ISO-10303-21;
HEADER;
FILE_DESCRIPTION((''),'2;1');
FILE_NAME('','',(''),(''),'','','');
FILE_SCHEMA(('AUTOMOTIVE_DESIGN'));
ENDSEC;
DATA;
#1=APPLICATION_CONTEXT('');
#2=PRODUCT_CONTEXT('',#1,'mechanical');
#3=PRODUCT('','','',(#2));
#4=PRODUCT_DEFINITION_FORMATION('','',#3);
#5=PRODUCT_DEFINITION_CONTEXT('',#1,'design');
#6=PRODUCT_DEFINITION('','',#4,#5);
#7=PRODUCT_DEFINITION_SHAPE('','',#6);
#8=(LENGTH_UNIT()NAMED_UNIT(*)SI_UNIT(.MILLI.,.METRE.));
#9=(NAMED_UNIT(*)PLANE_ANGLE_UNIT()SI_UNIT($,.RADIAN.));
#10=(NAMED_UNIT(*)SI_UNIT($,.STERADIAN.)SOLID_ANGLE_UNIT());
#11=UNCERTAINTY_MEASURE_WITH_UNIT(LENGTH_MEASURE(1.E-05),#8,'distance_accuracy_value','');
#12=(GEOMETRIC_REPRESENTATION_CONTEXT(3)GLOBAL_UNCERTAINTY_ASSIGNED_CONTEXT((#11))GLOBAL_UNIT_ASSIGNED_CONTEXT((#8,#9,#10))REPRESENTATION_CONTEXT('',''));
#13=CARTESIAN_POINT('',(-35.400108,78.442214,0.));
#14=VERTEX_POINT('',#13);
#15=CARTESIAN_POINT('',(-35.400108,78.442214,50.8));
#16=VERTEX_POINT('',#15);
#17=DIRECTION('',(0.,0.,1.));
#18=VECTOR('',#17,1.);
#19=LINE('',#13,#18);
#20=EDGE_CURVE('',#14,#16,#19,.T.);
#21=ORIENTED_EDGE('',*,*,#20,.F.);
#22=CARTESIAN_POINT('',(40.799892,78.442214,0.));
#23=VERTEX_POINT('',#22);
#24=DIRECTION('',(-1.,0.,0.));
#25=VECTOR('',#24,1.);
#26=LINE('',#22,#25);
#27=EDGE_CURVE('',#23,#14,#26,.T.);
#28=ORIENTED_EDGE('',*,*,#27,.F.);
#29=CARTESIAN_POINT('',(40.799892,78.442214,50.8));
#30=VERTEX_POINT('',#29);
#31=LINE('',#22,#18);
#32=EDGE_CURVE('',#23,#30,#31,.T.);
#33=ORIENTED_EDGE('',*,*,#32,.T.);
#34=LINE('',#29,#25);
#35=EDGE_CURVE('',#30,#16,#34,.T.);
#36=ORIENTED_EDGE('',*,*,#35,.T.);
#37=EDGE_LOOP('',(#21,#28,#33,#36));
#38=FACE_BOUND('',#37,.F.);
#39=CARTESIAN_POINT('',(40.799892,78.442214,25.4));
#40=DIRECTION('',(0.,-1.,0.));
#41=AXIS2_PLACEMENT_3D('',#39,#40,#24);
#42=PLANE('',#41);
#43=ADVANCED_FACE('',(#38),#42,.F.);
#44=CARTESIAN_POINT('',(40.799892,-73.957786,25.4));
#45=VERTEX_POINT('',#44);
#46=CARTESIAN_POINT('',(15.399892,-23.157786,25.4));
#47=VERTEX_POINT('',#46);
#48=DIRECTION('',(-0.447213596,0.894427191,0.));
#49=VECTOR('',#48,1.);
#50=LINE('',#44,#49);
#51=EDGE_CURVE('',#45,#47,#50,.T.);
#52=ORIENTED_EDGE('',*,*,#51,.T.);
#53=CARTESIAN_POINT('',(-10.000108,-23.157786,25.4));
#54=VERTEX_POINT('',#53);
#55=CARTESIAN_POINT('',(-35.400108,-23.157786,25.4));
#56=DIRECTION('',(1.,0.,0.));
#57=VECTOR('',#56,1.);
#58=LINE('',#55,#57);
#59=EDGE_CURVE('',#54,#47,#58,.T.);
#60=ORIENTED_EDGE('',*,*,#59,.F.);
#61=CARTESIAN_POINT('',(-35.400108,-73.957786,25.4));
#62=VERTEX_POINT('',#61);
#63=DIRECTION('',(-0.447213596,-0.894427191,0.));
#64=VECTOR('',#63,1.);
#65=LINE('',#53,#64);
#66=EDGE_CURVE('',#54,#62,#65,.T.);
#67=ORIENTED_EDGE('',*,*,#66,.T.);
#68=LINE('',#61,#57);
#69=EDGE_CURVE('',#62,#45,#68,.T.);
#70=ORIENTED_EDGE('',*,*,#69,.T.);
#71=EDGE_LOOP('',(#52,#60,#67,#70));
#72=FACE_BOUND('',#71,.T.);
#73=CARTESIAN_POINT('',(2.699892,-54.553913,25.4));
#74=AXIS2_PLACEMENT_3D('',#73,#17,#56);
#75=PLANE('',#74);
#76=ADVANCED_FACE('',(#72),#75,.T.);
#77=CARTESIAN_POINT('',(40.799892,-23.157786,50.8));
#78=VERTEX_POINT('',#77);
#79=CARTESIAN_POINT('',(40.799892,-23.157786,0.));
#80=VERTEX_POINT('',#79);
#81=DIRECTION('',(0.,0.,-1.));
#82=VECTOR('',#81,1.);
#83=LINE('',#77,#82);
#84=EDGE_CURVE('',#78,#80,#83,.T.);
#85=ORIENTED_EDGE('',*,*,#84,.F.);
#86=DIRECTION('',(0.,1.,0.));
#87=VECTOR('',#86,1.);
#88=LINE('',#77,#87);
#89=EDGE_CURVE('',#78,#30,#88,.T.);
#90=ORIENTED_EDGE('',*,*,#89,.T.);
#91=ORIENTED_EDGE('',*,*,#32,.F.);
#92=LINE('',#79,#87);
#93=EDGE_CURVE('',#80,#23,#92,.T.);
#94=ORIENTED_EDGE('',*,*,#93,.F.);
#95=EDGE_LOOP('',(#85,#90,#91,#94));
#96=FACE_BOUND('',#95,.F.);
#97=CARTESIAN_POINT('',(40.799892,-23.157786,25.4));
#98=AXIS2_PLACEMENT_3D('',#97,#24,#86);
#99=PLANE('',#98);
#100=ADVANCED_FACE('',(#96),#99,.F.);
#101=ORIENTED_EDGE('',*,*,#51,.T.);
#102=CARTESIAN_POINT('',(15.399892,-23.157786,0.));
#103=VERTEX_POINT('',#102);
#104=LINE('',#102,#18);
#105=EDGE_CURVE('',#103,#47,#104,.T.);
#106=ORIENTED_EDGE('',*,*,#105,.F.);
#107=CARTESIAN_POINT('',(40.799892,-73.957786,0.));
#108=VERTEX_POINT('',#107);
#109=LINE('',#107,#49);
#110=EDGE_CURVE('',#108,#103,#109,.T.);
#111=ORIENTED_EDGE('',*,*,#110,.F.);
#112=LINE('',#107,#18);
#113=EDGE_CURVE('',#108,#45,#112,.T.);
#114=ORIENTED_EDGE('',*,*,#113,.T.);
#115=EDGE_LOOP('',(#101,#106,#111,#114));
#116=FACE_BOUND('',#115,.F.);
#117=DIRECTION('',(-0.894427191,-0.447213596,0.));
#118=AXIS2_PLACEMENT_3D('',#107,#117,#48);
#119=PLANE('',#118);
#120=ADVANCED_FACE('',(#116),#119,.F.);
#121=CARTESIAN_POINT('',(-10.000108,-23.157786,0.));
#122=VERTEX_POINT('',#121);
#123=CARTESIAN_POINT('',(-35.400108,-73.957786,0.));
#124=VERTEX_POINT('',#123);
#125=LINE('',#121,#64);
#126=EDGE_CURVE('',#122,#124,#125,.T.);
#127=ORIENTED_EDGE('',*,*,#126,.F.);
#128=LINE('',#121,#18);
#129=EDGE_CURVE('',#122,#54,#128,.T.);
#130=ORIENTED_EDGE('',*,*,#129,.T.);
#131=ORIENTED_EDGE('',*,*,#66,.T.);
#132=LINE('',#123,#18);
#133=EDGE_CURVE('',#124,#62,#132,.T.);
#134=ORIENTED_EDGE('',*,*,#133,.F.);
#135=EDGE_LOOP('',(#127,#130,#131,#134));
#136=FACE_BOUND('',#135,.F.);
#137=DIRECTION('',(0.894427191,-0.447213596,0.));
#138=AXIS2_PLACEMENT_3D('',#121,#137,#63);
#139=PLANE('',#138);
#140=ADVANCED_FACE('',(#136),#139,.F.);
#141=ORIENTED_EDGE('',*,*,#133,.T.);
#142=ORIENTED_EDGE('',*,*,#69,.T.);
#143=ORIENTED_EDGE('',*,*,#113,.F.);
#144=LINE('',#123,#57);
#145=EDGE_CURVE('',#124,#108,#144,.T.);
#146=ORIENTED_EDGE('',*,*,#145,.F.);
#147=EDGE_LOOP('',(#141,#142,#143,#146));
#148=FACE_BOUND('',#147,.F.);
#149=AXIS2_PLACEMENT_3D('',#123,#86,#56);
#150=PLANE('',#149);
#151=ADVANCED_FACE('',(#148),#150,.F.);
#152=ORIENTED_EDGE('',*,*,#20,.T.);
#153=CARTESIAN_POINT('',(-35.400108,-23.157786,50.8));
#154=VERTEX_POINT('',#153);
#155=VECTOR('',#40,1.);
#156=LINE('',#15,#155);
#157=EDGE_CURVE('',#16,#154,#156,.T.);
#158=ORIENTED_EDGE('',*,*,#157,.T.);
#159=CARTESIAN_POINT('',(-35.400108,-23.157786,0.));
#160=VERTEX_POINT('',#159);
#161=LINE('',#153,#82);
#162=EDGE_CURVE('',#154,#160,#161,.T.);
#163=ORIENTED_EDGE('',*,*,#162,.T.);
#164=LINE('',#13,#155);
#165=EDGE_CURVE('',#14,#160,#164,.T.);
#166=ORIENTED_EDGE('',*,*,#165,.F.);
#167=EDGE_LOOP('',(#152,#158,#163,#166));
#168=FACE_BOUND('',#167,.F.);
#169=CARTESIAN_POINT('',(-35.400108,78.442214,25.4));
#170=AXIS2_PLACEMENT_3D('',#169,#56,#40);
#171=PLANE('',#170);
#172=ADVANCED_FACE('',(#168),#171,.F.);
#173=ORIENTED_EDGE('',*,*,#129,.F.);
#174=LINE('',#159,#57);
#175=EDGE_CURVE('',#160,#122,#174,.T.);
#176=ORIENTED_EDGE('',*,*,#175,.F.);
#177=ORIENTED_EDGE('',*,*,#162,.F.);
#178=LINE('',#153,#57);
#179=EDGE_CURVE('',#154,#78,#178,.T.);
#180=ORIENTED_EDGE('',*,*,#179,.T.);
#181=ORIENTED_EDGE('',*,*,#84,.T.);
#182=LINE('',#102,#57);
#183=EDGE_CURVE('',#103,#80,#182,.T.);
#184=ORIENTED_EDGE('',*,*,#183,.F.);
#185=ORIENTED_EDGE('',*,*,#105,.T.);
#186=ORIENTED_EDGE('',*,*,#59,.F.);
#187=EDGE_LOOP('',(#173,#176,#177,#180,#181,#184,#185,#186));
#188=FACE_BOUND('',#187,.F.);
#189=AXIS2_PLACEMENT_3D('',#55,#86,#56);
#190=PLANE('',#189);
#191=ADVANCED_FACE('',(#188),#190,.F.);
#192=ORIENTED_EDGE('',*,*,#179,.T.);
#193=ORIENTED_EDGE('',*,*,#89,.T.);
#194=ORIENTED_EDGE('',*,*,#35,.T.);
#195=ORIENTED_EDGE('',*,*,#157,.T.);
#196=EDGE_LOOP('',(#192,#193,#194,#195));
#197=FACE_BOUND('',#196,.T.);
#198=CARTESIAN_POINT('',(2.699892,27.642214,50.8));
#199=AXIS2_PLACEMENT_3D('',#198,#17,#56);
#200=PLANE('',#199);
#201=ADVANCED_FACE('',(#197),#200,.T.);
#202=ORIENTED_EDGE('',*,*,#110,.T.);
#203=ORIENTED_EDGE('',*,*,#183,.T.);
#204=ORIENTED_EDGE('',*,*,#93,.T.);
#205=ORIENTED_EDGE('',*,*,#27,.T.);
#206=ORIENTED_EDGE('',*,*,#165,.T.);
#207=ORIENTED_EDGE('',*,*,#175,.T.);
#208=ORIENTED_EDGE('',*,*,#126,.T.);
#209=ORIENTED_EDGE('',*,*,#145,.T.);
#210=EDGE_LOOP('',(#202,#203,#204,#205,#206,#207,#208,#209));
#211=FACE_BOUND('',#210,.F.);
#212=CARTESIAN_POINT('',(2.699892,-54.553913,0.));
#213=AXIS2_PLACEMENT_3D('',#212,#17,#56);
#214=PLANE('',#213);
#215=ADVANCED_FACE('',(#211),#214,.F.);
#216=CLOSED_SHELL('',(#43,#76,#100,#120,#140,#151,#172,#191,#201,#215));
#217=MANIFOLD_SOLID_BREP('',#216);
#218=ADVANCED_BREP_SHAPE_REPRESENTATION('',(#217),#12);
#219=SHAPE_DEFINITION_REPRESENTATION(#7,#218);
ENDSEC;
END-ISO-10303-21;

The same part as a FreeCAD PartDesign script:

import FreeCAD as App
import Part
import Sketcher
Q = App.Units.Quantity


def add_polygon(sketch, points):
    """Adds a closed chain of lines whose ends are joined by coincident constraints."""
    first, n = sketch.GeometryCount, len(points)
    for a, b in zip(points, points[1:] + points[:1]):
        sketch.addGeometry(Part.LineSegment(App.Vector(*a, 0), App.Vector(*b, 0)), False)
    for i in range(n):
        sketch.addConstraint(Sketcher.Constraint("Coincident", first + i, 2, first + (i + 1) % n, 1))

doc = App.newDocument("Part")
body = doc.addObject("PartDesign::Body", "Body")

sketch1 = body.newObject("Sketcher::SketchObject", "Sketch")
sketch1.AttachmentSupport = (doc.getObject("XY_Plane"), [""])
sketch1.MapMode = "FlatFace"
add_polygon(sketch1, [(-10.000108, -23.157786), (-35.400108, -73.957786), (40.799892, -73.957786), (15.399892, -23.157786), (40.799892, -23.157786), (40.799892, 78.442214), (-35.400108, 78.442214), (-35.400108, -23.157786)])
sketch1.addConstraint([
    Sketcher.Constraint("Horizontal", 1),
    Sketcher.Constraint("Horizontal", 3),
    Sketcher.Constraint("Vertical", 4),
    Sketcher.Constraint("Horizontal", 5),
    Sketcher.Constraint("Vertical", 6),
    Sketcher.Constraint("Horizontal", 7),
    Sketcher.Constraint("Horizontal", 3, 2, 6, 2),
    Sketcher.Constraint("Vertical", 1, 2, 3, 2),
    Sketcher.Constraint("Vertical", 0, 2, 5, 2),
    Sketcher.Constraint("Equal", 3, 7),
    Sketcher.Constraint("DistanceX", 1, 1, 1, 2, Q("3 in")),
    Sketcher.Constraint("DistanceX", 3, 1, 3, 2, Q("1 in")),
    Sketcher.Constraint("DistanceY", 4, 1, 4, 2, Q("4 in")),
    Sketcher.Constraint("DistanceY", 1, 2, 2, 2, Q("2 in")),
    Sketcher.Constraint("DistanceX", 0, 2, -1, 1, 35.400108),
    Sketcher.Constraint("DistanceY", 0, 2, -1, 1, 73.957786),
])
pad1 = body.newObject("PartDesign::Pad", "Pad")
pad1.Profile = sketch1
pad1.Length = Q("1 in")

sketch2 = body.newObject("Sketcher::SketchObject", "Sketch001")
sketch2.AttachmentSupport = (doc.getObject("XY_Plane"), [""])
sketch2.MapMode = "FlatFace"
sketch2.AttachmentOffset = App.Placement(App.Vector(0, 0, 1 * 25.4), App.Rotation())
add_polygon(sketch2, [(40.799892, -23.157786), (40.799892, 78.442214), (-35.400108, 78.442214), (-35.400108, -23.157786)])
sketch2.addConstraint([
    Sketcher.Constraint("Vertical", 0),
    Sketcher.Constraint("Horizontal", 1),
    Sketcher.Constraint("Vertical", 2),
    Sketcher.Constraint("Horizontal", 3),
    Sketcher.Constraint("DistanceX", 1, 2, 1, 1, Q("3 in")),
    Sketcher.Constraint("DistanceY", 0, 1, 0, 2, Q("4 in")),
    Sketcher.Constraint("DistanceX", 1, 2, -1, 1, 35.400108),
    Sketcher.Constraint("DistanceY", -1, 1, 0, 2, 78.442214),
])
pad2 = body.newObject("PartDesign::Pad", "Pad001")
pad2.Profile = sketch2
pad2.Length = Q("1 in")

doc.recompute()
